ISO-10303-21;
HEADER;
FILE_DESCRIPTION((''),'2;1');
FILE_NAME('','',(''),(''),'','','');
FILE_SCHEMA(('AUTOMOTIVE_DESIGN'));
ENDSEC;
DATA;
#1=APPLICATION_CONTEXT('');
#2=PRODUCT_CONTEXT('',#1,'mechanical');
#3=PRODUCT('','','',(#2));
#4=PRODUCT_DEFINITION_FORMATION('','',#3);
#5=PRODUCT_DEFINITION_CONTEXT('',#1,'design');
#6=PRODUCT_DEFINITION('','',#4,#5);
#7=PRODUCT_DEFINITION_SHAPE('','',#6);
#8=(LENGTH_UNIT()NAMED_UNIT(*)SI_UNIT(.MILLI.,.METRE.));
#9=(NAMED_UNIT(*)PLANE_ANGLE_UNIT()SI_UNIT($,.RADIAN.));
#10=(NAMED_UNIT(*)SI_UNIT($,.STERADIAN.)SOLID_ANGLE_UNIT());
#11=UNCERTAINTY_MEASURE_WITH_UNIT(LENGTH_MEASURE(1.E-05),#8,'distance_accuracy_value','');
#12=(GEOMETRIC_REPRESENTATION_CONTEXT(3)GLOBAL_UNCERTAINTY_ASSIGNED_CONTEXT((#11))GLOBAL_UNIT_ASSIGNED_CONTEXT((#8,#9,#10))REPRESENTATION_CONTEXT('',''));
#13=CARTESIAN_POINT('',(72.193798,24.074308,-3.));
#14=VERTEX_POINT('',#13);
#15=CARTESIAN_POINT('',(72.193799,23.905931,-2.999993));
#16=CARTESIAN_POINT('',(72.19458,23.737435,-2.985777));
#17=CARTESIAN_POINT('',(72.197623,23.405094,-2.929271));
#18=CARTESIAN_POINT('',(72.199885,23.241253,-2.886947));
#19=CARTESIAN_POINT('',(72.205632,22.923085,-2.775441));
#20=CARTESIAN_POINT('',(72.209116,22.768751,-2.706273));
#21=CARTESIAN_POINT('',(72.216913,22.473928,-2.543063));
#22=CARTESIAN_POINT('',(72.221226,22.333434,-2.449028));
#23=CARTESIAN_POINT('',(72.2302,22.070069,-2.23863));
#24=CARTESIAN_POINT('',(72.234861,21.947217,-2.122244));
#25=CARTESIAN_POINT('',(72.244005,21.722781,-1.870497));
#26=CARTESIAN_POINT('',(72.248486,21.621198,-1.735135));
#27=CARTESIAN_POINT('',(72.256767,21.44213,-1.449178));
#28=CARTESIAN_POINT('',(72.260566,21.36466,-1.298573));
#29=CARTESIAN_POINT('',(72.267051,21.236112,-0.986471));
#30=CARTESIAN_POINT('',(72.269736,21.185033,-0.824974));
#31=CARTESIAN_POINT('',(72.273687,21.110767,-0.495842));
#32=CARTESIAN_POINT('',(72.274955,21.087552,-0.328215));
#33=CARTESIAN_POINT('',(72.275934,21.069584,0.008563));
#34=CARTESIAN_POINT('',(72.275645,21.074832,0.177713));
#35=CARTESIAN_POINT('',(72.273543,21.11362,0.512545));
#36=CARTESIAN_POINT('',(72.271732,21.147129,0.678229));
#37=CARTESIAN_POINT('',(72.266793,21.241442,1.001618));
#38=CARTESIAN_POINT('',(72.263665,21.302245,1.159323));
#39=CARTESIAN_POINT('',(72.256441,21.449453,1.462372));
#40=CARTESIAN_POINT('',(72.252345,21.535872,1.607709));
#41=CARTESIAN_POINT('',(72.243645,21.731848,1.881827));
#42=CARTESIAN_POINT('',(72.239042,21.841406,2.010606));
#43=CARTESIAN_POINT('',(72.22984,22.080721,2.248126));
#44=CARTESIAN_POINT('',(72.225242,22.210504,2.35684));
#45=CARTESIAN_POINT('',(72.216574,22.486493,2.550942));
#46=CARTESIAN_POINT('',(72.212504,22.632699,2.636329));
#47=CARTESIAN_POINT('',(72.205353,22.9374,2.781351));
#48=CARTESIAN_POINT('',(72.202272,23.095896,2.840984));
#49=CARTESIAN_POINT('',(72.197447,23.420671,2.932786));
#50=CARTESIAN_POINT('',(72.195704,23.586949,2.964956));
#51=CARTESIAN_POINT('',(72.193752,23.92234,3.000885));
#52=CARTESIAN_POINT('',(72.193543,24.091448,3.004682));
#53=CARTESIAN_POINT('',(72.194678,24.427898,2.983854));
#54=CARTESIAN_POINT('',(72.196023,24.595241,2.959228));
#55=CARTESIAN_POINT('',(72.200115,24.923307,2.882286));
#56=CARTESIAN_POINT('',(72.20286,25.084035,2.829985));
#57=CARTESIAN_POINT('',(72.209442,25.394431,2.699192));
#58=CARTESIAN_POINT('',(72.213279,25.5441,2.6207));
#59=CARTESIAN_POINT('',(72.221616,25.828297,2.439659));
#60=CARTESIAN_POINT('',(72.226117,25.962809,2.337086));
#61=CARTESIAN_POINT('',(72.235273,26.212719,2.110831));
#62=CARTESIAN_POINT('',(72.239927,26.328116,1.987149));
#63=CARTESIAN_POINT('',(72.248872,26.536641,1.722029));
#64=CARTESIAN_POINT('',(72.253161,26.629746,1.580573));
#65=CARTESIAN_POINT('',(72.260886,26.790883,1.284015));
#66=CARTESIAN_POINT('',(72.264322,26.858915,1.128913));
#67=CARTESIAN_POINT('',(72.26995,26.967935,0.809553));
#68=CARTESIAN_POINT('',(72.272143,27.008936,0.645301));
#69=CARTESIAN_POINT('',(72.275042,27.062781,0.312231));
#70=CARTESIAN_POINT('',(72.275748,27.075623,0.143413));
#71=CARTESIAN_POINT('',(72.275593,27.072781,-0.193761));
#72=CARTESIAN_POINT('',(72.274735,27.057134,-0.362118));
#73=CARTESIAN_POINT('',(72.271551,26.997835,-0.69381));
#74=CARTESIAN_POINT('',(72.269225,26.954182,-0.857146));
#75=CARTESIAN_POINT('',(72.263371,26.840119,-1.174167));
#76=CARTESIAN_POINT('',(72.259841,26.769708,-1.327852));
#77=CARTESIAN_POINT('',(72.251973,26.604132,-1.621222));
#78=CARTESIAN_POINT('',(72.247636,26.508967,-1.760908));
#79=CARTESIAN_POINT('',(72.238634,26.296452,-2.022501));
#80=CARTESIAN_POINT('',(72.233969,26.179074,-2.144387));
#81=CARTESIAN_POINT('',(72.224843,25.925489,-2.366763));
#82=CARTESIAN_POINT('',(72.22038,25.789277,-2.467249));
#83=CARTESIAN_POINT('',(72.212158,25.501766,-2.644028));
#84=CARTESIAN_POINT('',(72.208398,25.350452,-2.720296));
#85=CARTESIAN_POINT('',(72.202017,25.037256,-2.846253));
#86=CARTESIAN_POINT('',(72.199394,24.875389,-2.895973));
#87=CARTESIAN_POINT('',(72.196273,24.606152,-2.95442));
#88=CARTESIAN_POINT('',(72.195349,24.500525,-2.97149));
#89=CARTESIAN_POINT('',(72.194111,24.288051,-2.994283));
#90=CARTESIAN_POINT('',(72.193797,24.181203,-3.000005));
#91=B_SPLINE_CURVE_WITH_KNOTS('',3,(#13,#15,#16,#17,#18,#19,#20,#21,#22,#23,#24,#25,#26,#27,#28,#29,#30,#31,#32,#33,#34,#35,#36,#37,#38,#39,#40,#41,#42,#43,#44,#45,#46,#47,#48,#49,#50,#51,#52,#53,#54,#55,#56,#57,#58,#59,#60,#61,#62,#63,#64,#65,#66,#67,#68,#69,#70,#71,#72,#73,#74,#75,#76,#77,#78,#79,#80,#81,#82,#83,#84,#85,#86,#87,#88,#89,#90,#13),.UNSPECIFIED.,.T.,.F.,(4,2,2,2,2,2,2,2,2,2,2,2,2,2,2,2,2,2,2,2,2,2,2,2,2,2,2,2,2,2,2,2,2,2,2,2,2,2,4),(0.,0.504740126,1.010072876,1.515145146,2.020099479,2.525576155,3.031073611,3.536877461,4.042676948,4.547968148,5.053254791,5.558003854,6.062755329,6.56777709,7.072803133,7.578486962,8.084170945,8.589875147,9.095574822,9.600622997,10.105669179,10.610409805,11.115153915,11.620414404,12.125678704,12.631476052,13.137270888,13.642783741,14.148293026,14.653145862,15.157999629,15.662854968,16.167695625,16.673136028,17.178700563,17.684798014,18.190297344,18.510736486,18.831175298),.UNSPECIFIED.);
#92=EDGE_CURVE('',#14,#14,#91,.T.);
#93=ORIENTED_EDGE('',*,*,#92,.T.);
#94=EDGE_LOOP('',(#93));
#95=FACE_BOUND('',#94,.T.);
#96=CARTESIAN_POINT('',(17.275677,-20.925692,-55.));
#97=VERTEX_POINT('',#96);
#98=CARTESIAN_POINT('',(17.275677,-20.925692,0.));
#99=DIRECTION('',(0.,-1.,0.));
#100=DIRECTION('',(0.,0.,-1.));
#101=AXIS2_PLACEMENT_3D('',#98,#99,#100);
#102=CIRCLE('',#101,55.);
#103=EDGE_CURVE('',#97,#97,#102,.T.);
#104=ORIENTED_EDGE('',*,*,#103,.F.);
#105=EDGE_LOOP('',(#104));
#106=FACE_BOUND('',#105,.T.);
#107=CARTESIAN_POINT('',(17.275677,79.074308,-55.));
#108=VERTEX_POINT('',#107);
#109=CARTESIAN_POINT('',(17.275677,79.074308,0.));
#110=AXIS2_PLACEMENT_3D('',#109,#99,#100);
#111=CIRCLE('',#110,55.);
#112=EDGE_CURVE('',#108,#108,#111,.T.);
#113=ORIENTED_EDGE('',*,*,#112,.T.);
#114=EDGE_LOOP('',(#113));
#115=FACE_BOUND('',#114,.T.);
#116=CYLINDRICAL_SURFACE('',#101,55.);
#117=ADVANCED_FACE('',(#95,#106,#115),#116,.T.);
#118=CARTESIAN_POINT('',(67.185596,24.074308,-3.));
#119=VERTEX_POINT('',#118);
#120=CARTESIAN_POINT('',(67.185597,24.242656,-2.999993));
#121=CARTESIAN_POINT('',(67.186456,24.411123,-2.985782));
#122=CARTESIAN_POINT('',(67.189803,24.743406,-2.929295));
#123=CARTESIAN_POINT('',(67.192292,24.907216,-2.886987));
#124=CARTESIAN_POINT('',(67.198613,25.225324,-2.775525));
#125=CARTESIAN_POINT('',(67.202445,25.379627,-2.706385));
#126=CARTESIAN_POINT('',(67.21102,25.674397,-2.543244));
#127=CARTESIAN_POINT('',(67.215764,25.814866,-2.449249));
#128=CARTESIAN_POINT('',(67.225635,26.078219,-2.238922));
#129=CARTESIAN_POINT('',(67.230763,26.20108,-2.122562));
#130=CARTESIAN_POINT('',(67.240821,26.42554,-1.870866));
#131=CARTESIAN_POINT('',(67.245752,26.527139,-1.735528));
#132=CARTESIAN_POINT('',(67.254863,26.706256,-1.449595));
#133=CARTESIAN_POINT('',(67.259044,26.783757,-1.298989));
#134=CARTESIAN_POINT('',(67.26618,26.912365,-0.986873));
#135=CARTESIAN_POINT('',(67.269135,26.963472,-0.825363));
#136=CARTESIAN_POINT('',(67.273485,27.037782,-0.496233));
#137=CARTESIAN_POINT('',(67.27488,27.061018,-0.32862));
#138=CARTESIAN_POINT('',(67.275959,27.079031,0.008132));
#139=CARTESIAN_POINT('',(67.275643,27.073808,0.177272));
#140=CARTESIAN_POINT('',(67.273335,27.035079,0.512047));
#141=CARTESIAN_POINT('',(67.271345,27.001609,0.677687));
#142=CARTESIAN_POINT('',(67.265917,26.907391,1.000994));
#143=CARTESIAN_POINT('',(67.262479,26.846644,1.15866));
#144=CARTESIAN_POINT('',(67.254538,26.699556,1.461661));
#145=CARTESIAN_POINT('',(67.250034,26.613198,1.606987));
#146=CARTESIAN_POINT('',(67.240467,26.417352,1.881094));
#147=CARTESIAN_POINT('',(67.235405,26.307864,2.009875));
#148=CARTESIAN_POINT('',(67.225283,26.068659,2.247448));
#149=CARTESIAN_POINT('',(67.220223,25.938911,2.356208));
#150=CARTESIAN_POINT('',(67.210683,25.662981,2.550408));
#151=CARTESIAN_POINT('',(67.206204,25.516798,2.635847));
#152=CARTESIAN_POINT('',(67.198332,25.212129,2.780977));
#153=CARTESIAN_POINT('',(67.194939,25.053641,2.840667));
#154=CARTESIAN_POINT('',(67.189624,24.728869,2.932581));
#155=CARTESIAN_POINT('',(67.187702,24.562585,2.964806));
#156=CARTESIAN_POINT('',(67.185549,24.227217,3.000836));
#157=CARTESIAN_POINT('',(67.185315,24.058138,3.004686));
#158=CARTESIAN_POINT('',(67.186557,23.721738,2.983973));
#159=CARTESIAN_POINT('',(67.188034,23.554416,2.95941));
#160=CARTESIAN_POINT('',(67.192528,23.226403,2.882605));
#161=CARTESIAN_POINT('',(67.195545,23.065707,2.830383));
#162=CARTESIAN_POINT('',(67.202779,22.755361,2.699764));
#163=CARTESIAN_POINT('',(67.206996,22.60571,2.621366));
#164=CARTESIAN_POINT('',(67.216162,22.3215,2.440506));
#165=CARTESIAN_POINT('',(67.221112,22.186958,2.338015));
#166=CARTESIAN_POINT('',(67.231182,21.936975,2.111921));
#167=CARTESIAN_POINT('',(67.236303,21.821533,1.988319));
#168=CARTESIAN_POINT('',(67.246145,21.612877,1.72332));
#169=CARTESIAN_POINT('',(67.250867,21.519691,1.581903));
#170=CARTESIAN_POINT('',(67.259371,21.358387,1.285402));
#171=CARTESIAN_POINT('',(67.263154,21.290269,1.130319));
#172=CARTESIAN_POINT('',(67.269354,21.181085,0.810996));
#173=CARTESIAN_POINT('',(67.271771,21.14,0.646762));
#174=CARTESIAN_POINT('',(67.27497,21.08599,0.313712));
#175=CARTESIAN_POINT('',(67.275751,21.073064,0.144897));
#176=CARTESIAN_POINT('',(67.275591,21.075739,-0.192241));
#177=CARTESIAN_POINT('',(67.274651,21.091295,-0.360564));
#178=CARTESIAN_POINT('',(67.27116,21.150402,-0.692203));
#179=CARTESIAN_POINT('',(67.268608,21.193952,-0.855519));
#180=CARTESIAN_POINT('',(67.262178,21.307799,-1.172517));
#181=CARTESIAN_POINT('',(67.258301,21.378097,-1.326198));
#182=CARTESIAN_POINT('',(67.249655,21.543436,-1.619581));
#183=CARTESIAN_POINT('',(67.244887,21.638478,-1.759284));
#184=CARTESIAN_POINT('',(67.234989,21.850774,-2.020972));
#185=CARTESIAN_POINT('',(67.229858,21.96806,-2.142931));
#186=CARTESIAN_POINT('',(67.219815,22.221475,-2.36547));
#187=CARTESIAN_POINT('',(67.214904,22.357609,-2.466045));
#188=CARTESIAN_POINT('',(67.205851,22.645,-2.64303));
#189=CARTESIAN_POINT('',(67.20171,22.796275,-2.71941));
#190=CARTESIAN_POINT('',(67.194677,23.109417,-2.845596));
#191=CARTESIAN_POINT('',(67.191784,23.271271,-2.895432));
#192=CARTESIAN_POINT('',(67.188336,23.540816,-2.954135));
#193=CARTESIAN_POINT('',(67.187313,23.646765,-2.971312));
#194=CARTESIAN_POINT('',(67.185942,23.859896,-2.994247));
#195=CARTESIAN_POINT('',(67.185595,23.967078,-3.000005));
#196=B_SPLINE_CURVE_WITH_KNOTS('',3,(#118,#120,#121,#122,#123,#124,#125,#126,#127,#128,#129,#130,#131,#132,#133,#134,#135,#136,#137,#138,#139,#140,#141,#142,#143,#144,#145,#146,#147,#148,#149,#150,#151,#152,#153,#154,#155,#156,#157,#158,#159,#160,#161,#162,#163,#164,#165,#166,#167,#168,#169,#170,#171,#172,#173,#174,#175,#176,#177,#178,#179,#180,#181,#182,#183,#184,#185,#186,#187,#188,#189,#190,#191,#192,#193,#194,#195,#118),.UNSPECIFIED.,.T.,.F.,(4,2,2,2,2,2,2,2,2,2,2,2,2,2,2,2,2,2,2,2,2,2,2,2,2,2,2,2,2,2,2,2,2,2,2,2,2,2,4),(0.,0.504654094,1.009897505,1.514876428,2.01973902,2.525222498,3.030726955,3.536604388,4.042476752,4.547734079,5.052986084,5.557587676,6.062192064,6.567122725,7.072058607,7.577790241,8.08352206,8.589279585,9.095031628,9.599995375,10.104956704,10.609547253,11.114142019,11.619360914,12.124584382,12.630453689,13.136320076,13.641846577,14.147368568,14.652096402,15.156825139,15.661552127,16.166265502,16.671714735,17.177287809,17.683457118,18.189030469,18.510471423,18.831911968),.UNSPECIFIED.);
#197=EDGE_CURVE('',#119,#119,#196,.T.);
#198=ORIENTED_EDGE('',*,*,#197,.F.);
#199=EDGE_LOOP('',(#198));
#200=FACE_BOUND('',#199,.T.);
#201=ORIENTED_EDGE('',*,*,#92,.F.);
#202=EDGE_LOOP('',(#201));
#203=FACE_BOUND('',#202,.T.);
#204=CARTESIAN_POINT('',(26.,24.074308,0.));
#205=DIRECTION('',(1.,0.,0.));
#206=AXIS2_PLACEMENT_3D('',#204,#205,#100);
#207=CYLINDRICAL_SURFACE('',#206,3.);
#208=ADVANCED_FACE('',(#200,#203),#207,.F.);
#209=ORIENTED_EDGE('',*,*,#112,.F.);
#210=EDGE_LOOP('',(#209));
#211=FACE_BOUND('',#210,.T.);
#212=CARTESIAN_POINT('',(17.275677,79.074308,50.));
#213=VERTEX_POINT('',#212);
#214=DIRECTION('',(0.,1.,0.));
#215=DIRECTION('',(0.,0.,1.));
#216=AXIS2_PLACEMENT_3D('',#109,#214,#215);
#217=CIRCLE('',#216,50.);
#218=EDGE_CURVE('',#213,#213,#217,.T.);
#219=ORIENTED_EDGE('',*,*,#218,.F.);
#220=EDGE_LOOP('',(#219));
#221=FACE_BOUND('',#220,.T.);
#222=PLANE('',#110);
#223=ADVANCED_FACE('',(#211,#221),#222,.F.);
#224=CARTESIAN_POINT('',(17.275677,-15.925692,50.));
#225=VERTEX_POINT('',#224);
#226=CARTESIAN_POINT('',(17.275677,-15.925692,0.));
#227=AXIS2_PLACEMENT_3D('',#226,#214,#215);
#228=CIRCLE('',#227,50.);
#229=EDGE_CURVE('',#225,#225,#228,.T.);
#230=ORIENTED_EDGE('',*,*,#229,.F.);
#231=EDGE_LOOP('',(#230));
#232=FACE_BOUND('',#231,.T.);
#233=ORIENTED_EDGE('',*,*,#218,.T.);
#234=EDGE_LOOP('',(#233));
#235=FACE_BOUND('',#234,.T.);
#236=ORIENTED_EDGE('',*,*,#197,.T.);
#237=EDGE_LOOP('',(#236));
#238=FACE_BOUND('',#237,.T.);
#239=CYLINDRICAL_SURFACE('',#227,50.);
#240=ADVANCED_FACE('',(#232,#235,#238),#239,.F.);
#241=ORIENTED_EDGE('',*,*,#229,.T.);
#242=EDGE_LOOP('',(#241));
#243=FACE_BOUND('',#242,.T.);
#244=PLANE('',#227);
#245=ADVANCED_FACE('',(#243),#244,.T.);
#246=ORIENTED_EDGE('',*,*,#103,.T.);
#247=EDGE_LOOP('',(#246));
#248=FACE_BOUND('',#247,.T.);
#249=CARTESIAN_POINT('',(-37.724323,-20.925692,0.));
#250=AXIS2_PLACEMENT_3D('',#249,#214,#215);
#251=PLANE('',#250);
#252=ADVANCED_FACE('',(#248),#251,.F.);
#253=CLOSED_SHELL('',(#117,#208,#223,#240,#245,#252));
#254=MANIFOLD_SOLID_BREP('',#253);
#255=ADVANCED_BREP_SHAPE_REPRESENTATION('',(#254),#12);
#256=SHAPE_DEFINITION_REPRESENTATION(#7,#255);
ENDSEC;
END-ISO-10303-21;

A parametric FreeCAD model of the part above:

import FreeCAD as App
import Part
import Sketcher
from FreeCAD import Vector


def add_polygon(sketch, points):
    """Adds a closed chain of lines whose ends are joined by coincident constraints."""
    first, n = sketch.GeometryCount, len(points)
    for a, b in zip(points, points[1:] + points[:1]):
        sketch.addGeometry(Part.LineSegment(App.Vector(*a, 0), App.Vector(*b, 0)), False)
    for i in range(n):
        sketch.addConstraint(Sketcher.Constraint("Coincident", first + i, 2, first + (i + 1) % n, 1))

doc = App.newDocument("Part")
params = doc.addObject("Spreadsheet::Sheet", "Params")
for row, (alias, value) in enumerate([
    ("sketch1_width", "55 mm"),
    ("sketch1_height", "100 mm"),
    ("revolution_angle", "360 deg"),
    ("sketch2_diameter", "100 mm"),
    ("pocket1_length", "95 mm"),
    ("sketch3_diameter", "6 mm"),
    ("pocket2_length", "49 mm"),
], start=1):
    params.set(f"A{row}", alias)
    params.set(f"B{row}", "=" + value)
    params.setAlias(f"B{row}", alias)

body = doc.addObject("PartDesign::Body", "Body")

# Sketch on XY plane
sketch1 = body.newObject("Sketcher::SketchObject", "Sketch")
sketch1.AttachmentSupport = (doc.getObject("XY_Plane"), [""])
sketch1.MapMode = "FlatFace"
add_polygon(sketch1, [(-38, 79), (-38, -21), (17, -21), (17, 79)])  # lines 0-3
sketch1.addGeometry(Part.LineSegment(Vector(17, -21, 0), Vector(17, 79, 0)), True)  # axis
sketch1.addConstraint(Sketcher.Constraint("Vertical", 0))
sketch1.addConstraint(Sketcher.Constraint("Horizontal", 1))
sketch1.addConstraint(Sketcher.Constraint("Vertical", 2))
sketch1.addConstraint(Sketcher.Constraint("Horizontal", 3))
sketch1.addConstraint(Sketcher.Constraint("Vertical", 4))
sketch1.addConstraint(Sketcher.Constraint("Coincident", 4, 1, 1, 2))
sketch1.addConstraint(Sketcher.Constraint("Horizontal", 3, 2, 4, 2))
sketch1.addConstraint(Sketcher.Constraint("DistanceX", 1, 1, 1, 2, 55.0))
sketch1.addConstraint(Sketcher.Constraint("DistanceY", 0, 2, 0, 1, 100.0))
sketch1.addConstraint(Sketcher.Constraint("DistanceX", 0, 2, -1, 1, 37.724323))
sketch1.addConstraint(Sketcher.Constraint("DistanceY", 0, 2, -1, 1, 20.925692))
sketch1.setExpression("Constraints[11]", "Params.sketch1_width")
sketch1.setExpression("Constraints[12]", "Params.sketch1_height")
revolution = body.newObject("PartDesign::Revolution", "Revolution")
revolution.Profile = sketch1
revolution.ReferenceAxis = (sketch1, ["Axis0"])
revolution.setExpression("Angle", "Params.revolution_angle")

# Sketch on XZ plane
sketch2 = body.newObject("Sketcher::SketchObject", "Sketch001")
sketch2.AttachmentSupport = (doc.getObject("XZ_Plane"), [""])
sketch2.MapMode = "FlatFace"
sketch2.AttachmentOffset = App.Placement(Vector(0, 0, -79.074308), App.Rotation())
sketch2.addGeometry(Part.Circle(Vector(17, 0, 0), Vector(0, 0, 1), 50), False)
sketch2.addConstraint(Sketcher.Constraint("PointOnObject", 0, 3, -1))
sketch2.addConstraint(Sketcher.Constraint("Diameter", 0, 100.0))
sketch2.addConstraint(Sketcher.Constraint("DistanceX", -1, 1, 0, 3, 17.275677))
sketch2.setExpression("Constraints[1]", "Params.sketch2_diameter")
pocket1 = body.newObject("PartDesign::Pocket", "Pocket")
pocket1.Profile = sketch2
pocket1.setExpression("Length", "Params.pocket1_length")
pocket1.Reversed = True

# Sketch on YZ plane
sketch3 = body.newObject("Sketcher::SketchObject", "Sketch002")
sketch3.AttachmentSupport = (doc.getObject("YZ_Plane"), [""])
sketch3.MapMode = "FlatFace"
sketch3.AttachmentOffset = App.Placement(Vector(0, 0, 75), App.Rotation())
sketch3.addGeometry(Part.Circle(Vector(24.1, 0, 0), Vector(0, 0, 1), 3), False)
sketch3.addConstraint(Sketcher.Constraint("PointOnObject", 0, 3, -1))
sketch3.addConstraint(Sketcher.Constraint("Diameter", 0, 6.0))
sketch3.addConstraint(Sketcher.Constraint("DistanceX", -1, 1, 0, 3, 24.074308))
sketch3.setExpression("Constraints[1]", "Params.sketch3_diameter")
pocket2 = body.newObject("PartDesign::Pocket", "Pocket001")
pocket2.Profile = sketch3
pocket2.setExpression("Length", "Params.pocket2_length")

doc.recompute()
